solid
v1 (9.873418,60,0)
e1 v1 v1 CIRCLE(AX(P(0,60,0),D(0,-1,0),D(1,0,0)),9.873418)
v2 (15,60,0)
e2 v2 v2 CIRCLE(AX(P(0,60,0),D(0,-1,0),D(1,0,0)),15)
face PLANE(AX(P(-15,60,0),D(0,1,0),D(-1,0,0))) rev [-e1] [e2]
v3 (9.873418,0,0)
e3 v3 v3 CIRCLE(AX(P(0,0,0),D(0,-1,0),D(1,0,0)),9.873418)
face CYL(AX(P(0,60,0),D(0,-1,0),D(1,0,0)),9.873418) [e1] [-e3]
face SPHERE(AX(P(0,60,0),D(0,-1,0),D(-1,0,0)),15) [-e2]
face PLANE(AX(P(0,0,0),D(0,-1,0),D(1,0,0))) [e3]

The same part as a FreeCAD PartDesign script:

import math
import FreeCAD as App
import Part
import Sketcher
from FreeCAD import Vector

doc = App.newDocument("Part")
body = doc.addObject("PartDesign::Body", "Body")

sketch1 = doc.addObject("Sketcher::SketchObject", "Sketch")
body.addObject(sketch1)
sketch1.AttachmentSupport = (doc.XY_Plane, [""])
sketch1.MapMode = "FlatFace"
sketch1.addGeometry([
    Part.LineSegment(Vector(-15, 60, 0), Vector(-10, 60, 0)),
    Part.LineSegment(Vector(-10, 60, 0), Vector(-10, 0, 0)),
    Part.LineSegment(Vector(-10, 0, 0), Vector(0, 0, 0)),
    Part.LineSegment(Vector(0, 0, 0), Vector(0, 75, 0)),
    Part.ArcOfCircle(Part.Circle(Vector(0, 60, 0), Vector(0, 0, 1), 15), math.radians(90), math.radians(180)),
], False)
sketch1.addConstraint([
    Sketcher.Constraint("Coincident", 0, 2, 1, 1),
    Sketcher.Constraint("Coincident", 1, 2, 2, 1),
    Sketcher.Constraint("Coincident", 2, 2, 3, 1),
    Sketcher.Constraint("Coincident", 3, 2, 4, 1),
    Sketcher.Constraint("Coincident", 4, 2, 0, 1),
    Sketcher.Constraint("Horizontal", 0),
    Sketcher.Constraint("Vertical", 1),
    Sketcher.Constraint("Horizontal", 2),
    Sketcher.Constraint("Vertical", 3),
    Sketcher.Constraint("Coincident", 2, 2, -1, 1),
    Sketcher.Constraint("PointOnObject", 4, 3, -2),
    Sketcher.Constraint("Horizontal", 4, 3, 0, 2),
    Sketcher.Constraint("Radius", 4, 15.0),
    Sketcher.Constraint("DistanceY", 1, 2, 1, 1, 60.0),
    Sketcher.Constraint("DistanceX", 0, 1, 0, 2, 5.126582),
])
revolution = doc.addObject("PartDesign::Revolution", "Revolution")
body.addObject(revolution)
revolution.Profile = sketch1
revolution.ReferenceAxis = (sketch1, ["V_Axis"])
revolution.Angle = 360

doc.recompute()
